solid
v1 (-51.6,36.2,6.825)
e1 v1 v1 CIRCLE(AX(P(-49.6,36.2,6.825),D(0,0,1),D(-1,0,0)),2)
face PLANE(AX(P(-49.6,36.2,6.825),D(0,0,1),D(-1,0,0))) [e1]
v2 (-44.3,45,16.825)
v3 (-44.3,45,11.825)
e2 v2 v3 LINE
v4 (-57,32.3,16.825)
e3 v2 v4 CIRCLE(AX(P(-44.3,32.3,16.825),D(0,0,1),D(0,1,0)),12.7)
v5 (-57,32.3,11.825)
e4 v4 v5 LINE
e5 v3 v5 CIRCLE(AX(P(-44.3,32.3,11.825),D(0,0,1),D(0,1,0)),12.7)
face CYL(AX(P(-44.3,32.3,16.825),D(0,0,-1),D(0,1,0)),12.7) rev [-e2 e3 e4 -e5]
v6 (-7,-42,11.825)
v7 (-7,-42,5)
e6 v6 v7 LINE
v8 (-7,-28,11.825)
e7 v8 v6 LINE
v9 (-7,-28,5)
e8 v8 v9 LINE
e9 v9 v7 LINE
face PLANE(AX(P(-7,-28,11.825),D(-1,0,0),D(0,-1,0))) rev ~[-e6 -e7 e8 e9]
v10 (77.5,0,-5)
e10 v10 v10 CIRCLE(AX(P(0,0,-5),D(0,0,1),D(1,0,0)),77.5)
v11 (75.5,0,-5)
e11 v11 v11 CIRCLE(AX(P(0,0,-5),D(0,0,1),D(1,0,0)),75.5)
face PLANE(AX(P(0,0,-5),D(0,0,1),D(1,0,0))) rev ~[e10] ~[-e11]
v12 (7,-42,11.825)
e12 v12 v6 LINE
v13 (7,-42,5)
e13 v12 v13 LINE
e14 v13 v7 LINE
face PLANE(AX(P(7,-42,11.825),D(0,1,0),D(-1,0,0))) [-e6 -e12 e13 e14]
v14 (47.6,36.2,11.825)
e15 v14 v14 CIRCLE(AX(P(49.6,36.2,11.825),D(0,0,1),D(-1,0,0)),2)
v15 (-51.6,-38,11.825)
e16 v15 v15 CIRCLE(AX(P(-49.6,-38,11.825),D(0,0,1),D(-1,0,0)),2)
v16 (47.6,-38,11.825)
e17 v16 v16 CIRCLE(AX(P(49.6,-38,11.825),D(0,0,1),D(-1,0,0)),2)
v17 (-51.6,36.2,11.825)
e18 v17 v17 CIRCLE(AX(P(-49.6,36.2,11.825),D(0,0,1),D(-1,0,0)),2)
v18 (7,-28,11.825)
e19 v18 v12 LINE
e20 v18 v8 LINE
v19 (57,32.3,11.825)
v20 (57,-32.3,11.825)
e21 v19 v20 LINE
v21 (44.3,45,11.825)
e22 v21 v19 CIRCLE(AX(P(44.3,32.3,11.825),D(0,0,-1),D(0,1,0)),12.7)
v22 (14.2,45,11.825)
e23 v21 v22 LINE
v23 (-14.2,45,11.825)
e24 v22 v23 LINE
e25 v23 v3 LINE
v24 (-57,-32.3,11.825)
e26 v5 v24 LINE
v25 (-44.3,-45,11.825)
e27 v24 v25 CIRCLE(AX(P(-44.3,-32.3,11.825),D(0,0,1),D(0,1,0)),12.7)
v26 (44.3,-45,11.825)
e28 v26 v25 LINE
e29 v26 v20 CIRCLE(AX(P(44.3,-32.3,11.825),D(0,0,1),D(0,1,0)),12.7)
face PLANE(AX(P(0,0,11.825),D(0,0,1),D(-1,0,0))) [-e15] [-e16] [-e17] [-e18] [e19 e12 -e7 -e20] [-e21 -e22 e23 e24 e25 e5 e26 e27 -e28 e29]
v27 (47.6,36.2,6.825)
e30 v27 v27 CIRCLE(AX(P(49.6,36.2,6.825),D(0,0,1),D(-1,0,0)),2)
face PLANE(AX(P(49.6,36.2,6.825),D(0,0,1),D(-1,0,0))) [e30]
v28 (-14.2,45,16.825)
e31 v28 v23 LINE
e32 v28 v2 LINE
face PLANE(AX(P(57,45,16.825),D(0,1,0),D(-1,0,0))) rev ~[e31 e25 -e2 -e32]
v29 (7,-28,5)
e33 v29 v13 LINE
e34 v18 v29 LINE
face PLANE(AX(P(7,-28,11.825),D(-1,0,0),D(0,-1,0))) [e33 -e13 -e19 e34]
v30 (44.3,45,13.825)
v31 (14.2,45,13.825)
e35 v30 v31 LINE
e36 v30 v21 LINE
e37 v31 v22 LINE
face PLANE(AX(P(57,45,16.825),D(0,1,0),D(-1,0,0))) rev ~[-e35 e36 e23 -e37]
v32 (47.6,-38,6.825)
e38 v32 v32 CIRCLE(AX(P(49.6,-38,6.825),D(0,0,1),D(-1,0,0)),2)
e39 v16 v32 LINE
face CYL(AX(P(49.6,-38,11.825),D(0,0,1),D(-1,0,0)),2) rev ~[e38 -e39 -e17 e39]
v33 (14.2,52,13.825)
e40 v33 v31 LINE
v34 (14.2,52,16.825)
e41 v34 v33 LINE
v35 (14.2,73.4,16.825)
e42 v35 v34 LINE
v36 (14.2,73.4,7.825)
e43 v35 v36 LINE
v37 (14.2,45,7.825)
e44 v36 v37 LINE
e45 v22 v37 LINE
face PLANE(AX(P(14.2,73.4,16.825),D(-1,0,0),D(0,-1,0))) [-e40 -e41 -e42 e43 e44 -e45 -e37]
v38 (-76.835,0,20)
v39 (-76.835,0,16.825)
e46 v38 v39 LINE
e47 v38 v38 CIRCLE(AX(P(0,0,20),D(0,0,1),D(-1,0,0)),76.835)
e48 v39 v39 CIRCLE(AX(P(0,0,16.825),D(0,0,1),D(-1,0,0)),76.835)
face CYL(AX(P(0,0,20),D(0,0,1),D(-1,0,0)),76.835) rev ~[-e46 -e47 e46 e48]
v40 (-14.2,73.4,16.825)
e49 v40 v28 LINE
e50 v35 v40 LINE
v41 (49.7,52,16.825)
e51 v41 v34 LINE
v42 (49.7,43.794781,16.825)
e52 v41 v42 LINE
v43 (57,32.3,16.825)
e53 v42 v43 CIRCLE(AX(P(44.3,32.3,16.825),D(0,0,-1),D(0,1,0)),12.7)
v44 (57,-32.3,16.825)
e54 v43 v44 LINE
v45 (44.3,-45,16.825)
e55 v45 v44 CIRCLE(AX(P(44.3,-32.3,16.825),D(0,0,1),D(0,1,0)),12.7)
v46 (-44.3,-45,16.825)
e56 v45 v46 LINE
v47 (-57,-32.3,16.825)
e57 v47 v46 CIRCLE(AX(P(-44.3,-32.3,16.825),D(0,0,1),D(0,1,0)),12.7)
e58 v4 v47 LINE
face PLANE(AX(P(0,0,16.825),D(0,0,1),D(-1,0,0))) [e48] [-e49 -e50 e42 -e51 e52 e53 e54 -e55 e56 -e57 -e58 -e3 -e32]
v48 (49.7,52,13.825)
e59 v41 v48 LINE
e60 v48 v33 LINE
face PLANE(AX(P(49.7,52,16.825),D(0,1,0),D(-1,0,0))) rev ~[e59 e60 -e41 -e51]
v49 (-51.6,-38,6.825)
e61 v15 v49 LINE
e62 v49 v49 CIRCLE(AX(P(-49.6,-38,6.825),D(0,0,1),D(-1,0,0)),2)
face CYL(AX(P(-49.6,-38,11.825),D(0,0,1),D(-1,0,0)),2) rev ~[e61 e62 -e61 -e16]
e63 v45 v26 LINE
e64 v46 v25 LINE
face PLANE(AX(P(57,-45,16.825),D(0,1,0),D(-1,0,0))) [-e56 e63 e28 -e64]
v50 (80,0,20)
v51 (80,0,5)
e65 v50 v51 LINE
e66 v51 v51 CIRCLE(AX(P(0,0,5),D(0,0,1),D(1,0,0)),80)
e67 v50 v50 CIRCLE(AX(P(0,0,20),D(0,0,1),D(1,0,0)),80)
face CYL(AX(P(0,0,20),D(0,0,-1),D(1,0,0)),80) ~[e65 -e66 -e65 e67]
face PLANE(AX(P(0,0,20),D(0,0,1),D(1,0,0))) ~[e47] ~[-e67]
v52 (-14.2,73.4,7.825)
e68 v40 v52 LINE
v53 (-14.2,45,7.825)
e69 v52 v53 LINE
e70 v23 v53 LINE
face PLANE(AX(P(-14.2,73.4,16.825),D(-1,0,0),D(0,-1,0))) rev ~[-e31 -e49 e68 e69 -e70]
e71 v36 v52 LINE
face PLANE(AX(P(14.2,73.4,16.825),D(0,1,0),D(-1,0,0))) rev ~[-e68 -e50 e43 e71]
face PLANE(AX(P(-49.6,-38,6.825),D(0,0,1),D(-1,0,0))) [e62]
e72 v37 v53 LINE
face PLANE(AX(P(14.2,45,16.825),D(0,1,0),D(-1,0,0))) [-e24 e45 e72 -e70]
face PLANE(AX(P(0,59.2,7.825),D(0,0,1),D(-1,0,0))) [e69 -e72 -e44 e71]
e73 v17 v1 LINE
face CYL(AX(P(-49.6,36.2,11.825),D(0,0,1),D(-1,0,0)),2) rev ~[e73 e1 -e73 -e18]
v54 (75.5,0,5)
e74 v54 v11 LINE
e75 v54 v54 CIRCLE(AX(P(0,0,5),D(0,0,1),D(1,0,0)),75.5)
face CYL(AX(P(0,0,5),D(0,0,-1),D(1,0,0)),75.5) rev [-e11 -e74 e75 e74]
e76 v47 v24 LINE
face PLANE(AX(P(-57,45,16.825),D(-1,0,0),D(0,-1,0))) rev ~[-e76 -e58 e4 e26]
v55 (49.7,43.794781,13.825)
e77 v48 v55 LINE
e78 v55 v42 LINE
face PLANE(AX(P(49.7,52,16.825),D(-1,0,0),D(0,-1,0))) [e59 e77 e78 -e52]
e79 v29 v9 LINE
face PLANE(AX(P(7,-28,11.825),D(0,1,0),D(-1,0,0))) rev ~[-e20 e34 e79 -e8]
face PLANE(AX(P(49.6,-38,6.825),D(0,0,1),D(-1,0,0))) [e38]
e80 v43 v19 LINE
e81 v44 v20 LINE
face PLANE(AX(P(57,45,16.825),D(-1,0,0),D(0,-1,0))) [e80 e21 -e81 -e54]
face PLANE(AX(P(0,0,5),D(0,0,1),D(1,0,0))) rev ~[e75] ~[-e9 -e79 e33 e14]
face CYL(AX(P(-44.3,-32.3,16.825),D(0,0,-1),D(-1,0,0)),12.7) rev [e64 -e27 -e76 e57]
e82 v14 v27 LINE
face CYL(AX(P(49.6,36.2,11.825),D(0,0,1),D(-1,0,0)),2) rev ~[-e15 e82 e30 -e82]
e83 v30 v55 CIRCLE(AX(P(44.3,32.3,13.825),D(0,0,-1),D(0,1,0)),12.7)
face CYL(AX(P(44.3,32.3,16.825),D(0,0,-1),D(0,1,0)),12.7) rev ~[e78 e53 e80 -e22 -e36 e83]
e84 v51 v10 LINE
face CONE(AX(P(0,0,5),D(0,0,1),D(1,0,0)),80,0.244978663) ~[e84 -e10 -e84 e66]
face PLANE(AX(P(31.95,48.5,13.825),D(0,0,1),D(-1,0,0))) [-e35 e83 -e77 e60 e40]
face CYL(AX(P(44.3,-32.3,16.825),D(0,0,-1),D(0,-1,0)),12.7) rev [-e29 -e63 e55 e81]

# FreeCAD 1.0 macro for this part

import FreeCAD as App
import Part
import Sketcher
Q = App.Units.Quantity


def edges_at(feature, points):
    """Names of the edges that pass closest to the given points."""
    edges = feature.Shape.Edges
    near = lambda p: min(range(len(edges)), key=lambda i: edges[i].distToShape(Part.Vertex(*p))[0])
    return sorted({f"Edge{near(p) + 1}" for p in points})


def add_polygon(sketch, points):
    """Adds a closed chain of lines whose ends are joined by coincident constraints."""
    first, n = sketch.GeometryCount, len(points)
    for a, b in zip(points, points[1:] + points[:1]):
        sketch.addGeometry(Part.LineSegment(App.Vector(*a, 0), App.Vector(*b, 0)), False)
    for i in range(n):
        sketch.addConstraint(Sketcher.Constraint("Coincident", first + i, 2, first + (i + 1) % n, 1))

doc = App.newDocument("Part")
body = doc.addObject("PartDesign::Body", "Body")

# Sketch on XZ plane
sketch1 = body.newObject("Sketcher::SketchObject", "Sketch")
sketch1.AttachmentSupport = (doc.getObject("XZ_Plane"), [""])
sketch1.MapMode = "FlatFace"
add_polygon(sketch1, [(0, 20), (0, 5), (75.5, 5), (75.5, -5), (77.5, -5), (80, 5), (80, 20)])  # lines 0-6
sketch1.addConstraint([
    Sketcher.Constraint("Vertical", 0),
    Sketcher.Constraint("Horizontal", 1),
    Sketcher.Constraint("Vertical", 2),
    Sketcher.Constraint("Horizontal", 3),
    Sketcher.Constraint("Vertical", 5),
    Sketcher.Constraint("Horizontal", 6),
    Sketcher.Constraint("PointOnObject", 0, 2, -2),
    Sketcher.Constraint("Horizontal", 1, 2, 4, 2),
    Sketcher.Constraint("DistanceX", 3, 1, 3, 2, Q("2 mm")),
    Sketcher.Constraint("DistanceX", 6, 2, 6, 1, Q("80 mm")),
    Sketcher.Constraint("DistanceY", 0, 2, 0, 1, Q("15 mm")),
    Sketcher.Constraint("DistanceY", 2, 2, 2, 1, Q("10 mm")),
    Sketcher.Constraint("DistanceX", 1, 1, 1, 2, Q("75.5 mm")),
    Sketcher.Constraint("DistanceY", -1, 1, 0, 2, Q("5 mm")),
])
revolution = body.newObject("PartDesign::Revolution", "Revolution")
revolution.Profile = sketch1
revolution.ReferenceAxis = (sketch1, ["V_Axis"])
revolution.Angle = 360

# Sketch on XY plane
sketch2 = body.newObject("Sketcher::SketchObject", "Sketch001")
sketch2.AttachmentSupport = (doc.getObject("XY_Plane"), [""])
sketch2.MapMode = "FlatFace"
sketch2.AttachmentOffset = App.Placement(App.Vector(0, 0, 20), App.Rotation())
sketch2.addGeometry(Part.Circle(App.Vector(0, 0, 0), App.Vector(0, 0, 1), 77), False)
sketch2.addConstraint([
    Sketcher.Constraint("Coincident", 0, 3, -1, 1),
    Sketcher.Constraint("Diameter", 0, Q("153.67 mm")),
])
pocket1 = body.newObject("PartDesign::Pocket", "Pocket")
pocket1.Profile = sketch2
pocket1.Length = 3.175

# Sketch on XY plane
sketch3 = body.newObject("Sketcher::SketchObject", "Sketch002")
sketch3.AttachmentSupport = (doc.getObject("XY_Plane"), [""])
sketch3.MapMode = "FlatFace"
sketch3.AttachmentOffset = App.Placement(App.Vector(0, 0, 16.825), App.Rotation())
add_polygon(sketch3, [(57, -45), (57, 45), (-57, 45), (-57, -45)])  # lines 0-3
sketch3.addConstraint([
    Sketcher.Constraint("Vertical", 0),
    Sketcher.Constraint("Horizontal", 1),
    Sketcher.Constraint("Vertical", 2),
    Sketcher.Constraint("Horizontal", 3),
    Sketcher.Constraint("Symmetric", 0, 2, 2, 2, -1, 1),
    Sketcher.Constraint("DistanceX", 1, 2, 1, 1, Q("114 mm")),
    Sketcher.Constraint("DistanceY", 0, 1, 0, 2, Q("90 mm")),
])
pocket2 = body.newObject("PartDesign::Pocket", "Pocket001")
pocket2.Profile = sketch3
pocket2.Length = 5

# Sketch on XY plane
sketch4 = body.newObject("Sketcher::SketchObject", "Sketch003")
sketch4.AttachmentSupport = (doc.getObject("XY_Plane"), [""])
sketch4.MapMode = "FlatFace"
sketch4.AttachmentOffset = App.Placement(App.Vector(0, 0, 11.825), App.Rotation())
add_polygon(sketch4, [(7, -42), (7, -28), (-7, -28), (-7, -42)])  # lines 0-3
sketch4.addConstraint([
    Sketcher.Constraint("Vertical", 0),
    Sketcher.Constraint("Horizontal", 1),
    Sketcher.Constraint("Vertical", 2),
    Sketcher.Constraint("Horizontal", 3),
    Sketcher.Constraint("Equal", 3, 0),
    Sketcher.Constraint("DistanceX", 1, 2, 1, 1, Q("14 mm")),
    Sketcher.Constraint("DistanceX", -1, 1, 0, 2, Q("7 mm")),
    Sketcher.Constraint("DistanceY", 0, 2, -1, 1, Q("28 mm")),
])
pocket3 = body.newObject("PartDesign::Pocket", "Pocket002")
pocket3.Profile = sketch4
pocket3.Type = "ThroughAll"

# Sketch on XY plane
sketch5 = body.newObject("Sketcher::SketchObject", "Sketch004")
sketch5.AttachmentSupport = (doc.getObject("XY_Plane"), [""])
sketch5.MapMode = "FlatFace"
sketch5.AttachmentOffset = App.Placement(App.Vector(0, 0, 16.825), App.Rotation())
add_polygon(sketch5, [(14, 45), (14, 73), (-14, 73), (-14, 45)])  # lines 0-3
sketch5.addConstraint([
    Sketcher.Constraint("Vertical", 0),
    Sketcher.Constraint("Horizontal", 1),
    Sketcher.Constraint("Vertical", 2),
    Sketcher.Constraint("Horizontal", 3),
    Sketcher.Constraint("Equal", 3, 0),
    Sketcher.Constraint("DistanceX", 1, 2, 1, 1, Q("28.4 mm")),
    Sketcher.Constraint("DistanceY", -1, 1, 2, 2, Q("45 mm")),
    Sketcher.Constraint("DistanceX", -1, 1, 0, 2, Q("14.2 mm")),
])
pocket4 = body.newObject("PartDesign::Pocket", "Pocket003")
pocket4.Profile = sketch5
pocket4.Length = 9

# Sketch on XY plane
sketch6 = body.newObject("Sketcher::SketchObject", "Sketch005")
sketch6.AttachmentSupport = (doc.getObject("XY_Plane"), [""])
sketch6.MapMode = "FlatFace"
sketch6.AttachmentOffset = App.Placement(App.Vector(0, 0, 16.825), App.Rotation())
add_polygon(sketch6, [(50, 45), (50, 52), (14, 52), (14, 45)])  # lines 0-3
sketch6.addConstraint([
    Sketcher.Constraint("Vertical", 0),
    Sketcher.Constraint("Horizontal", 1),
    Sketcher.Constraint("Vertical", 2),
    Sketcher.Constraint("Horizontal", 3),
    Sketcher.Constraint("DistanceY", 0, 1, 0, 2, Q("7 mm")),
    Sketcher.Constraint("DistanceX", 1, 2, 1, 1, Q("35.5 mm")),
    Sketcher.Constraint("DistanceY", -1, 1, 0, 2, Q("52 mm")),
    Sketcher.Constraint("DistanceX", -1, 1, 0, 2, Q("49.7 mm")),
])
pocket5 = body.newObject("PartDesign::Pocket", "Pocket004")
pocket5.Profile = sketch6
pocket5.Length = 3
doc.recompute()

fillet = body.newObject("PartDesign::Fillet", "Fillet")
fillet.Base = (pocket5, edges_at(pocket5, [
    (57, -45, 14.325),
    (57, 45, 14.325),
    (-57, -45, 14.325),
    (-57, 45, 14.325),
]))
fillet.Radius = 12.7

# Sketch on XY plane
sketch7 = body.newObject("Sketcher::SketchObject", "Sketch006")
sketch7.AttachmentSupport = (doc.getObject("XY_Plane"), [""])
sketch7.MapMode = "FlatFace"
sketch7.AttachmentOffset = App.Placement(App.Vector(0, 0, 11.825), App.Rotation())
sketch7.addGeometry([
    Part.Circle(App.Vector(49.6, -38, 0), App.Vector(0, 0, 1), 2),
    Part.Circle(App.Vector(-49.6, -38, 0), App.Vector(0, 0, 1), 2),
    Part.Circle(App.Vector(49.6, 36.2, 0), App.Vector(0, 0, 1), 2),
    Part.Circle(App.Vector(-49.6, 36.2, 0), App.Vector(0, 0, 1), 2),
], False)
sketch7.addConstraint([
    Sketcher.Constraint("Equal", 0, 1),
    Sketcher.Constraint("Equal", 1, 2),
    Sketcher.Constraint("Equal", 2, 3),
    Sketcher.Constraint("Symmetric", 0, 3, 1, 3, -2),
    Sketcher.Constraint("Symmetric", 2, 3, 3, 3, -2),
    Sketcher.Constraint("Vertical", 0, 3, 2, 3),
    Sketcher.Constraint("Diameter", 0, Q("4 mm")),
    Sketcher.Constraint("DistanceY", 0, 3, -1, 1, Q("38 mm")),
    Sketcher.Constraint("DistanceX", -1, 1, 0, 3, Q("49.6 mm")),
    Sketcher.Constraint("DistanceY", -1, 1, 2, 3, Q("36.2 mm")),
])
pocket6 = body.newObject("PartDesign::Pocket", "Pocket005")
pocket6.Profile = sketch7
pocket6.Length = 5

doc.recompute()
